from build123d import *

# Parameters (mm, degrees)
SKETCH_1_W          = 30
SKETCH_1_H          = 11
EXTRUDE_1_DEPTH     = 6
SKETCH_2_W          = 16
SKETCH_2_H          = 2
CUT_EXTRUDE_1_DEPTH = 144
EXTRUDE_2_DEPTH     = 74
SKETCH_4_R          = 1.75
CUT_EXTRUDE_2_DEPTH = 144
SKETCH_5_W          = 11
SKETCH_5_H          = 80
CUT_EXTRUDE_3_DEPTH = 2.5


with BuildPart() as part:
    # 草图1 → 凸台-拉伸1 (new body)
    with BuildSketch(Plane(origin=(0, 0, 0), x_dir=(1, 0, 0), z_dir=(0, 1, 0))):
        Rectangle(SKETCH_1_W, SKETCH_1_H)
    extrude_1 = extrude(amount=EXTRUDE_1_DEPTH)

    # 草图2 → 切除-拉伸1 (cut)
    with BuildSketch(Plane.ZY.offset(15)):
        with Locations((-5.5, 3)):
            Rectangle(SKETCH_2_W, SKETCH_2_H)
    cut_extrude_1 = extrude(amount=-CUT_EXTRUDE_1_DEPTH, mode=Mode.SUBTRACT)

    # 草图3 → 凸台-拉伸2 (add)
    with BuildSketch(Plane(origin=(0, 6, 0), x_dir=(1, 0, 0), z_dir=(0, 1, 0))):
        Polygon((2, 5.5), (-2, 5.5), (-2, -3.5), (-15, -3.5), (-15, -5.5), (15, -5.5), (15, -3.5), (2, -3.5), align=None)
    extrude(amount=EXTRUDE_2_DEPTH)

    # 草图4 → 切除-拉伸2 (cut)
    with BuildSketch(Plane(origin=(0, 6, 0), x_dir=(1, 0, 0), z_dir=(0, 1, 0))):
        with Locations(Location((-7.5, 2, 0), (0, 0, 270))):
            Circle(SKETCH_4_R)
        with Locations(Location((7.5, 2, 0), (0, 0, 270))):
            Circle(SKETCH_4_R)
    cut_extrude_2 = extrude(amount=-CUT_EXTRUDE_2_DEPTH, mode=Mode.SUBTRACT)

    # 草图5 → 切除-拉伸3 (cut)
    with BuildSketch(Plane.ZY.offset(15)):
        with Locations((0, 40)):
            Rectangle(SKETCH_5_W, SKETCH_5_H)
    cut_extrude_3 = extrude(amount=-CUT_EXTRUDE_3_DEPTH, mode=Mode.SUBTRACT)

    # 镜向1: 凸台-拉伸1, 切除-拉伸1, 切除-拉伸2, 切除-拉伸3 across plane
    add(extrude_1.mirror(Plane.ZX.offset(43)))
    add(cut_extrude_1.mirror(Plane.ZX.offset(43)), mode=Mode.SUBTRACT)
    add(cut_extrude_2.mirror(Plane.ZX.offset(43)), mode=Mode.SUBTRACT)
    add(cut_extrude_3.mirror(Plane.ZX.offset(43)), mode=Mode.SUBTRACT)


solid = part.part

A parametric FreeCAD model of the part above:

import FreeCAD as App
import Part
import Sketcher
Q = App.Units.Quantity

doc = App.newDocument("Part")
body = doc.addObject("PartDesign::Body", "Body")

# Sketch on XZ plane
sketch1 = body.newObject("Sketcher::SketchObject", "Sketch")
sketch1.AttachmentSupport = (doc.getObject("XZ_Plane"), [""])
sketch1.MapMode = "FlatFace"
sketch1.addGeometry([
    Part.LineSegment(App.Vector(-15, -5.5, 0), App.Vector(-15, 5.5, 0)),
    Part.LineSegment(App.Vector(-15, 5.5, 0), App.Vector(15, 5.5, 0)),
    Part.LineSegment(App.Vector(15, 5.5, 0), App.Vector(15, -5.5, 0)),
    Part.LineSegment(App.Vector(15, -5.5, 0), App.Vector(-15, -5.5, 0)),
], False)
sketch1.addConstraint([
    Sketcher.Constraint("Coincident", 0, 2, 1, 1),
    Sketcher.Constraint("Coincident", 1, 2, 2, 1),
    Sketcher.Constraint("Coincident", 2, 2, 3, 1),
    Sketcher.Constraint("Coincident", 3, 2, 0, 1),
    Sketcher.Constraint("Vertical", 0),
    Sketcher.Constraint("Horizontal", 1),
    Sketcher.Constraint("Vertical", 2),
    Sketcher.Constraint("Horizontal", 3),
    Sketcher.Constraint("Symmetric", 0, 2, 2, 2, -1, 1),
    Sketcher.Constraint("DistanceX", 1, 1, 1, 2, Q("30 mm")),
    Sketcher.Constraint("DistanceY", 0, 1, 0, 2, Q("11 mm")),
])
pad1 = body.newObject("PartDesign::Pad", "Pad")
pad1.Profile = sketch1
pad1.Length = 6
pad1.Reversed = True

# Sketch on YZ plane
sketch2 = body.newObject("Sketcher::SketchObject", "Sketch001")
sketch2.AttachmentSupport = (doc.getObject("YZ_Plane"), [""])
sketch2.MapMode = "FlatFace"
sketch2.AttachmentOffset = App.Placement(App.Vector(0, 0, -15), App.Rotation())
sketch2.addGeometry([
    Part.LineSegment(App.Vector(4, -13.5, 0), App.Vector(2, -13.5, 0)),
    Part.LineSegment(App.Vector(2, -13.5, 0), App.Vector(2, 2.5, 0)),
    Part.LineSegment(App.Vector(2, 2.5, 0), App.Vector(4, 2.5, 0)),
    Part.LineSegment(App.Vector(4, 2.5, 0), App.Vector(4, -13.5, 0)),
], False)
sketch2.addConstraint([
    Sketcher.Constraint("Coincident", 0, 2, 1, 1),
    Sketcher.Constraint("Coincident", 1, 2, 2, 1),
    Sketcher.Constraint("Coincident", 2, 2, 3, 1),
    Sketcher.Constraint("Coincident", 3, 2, 0, 1),
    Sketcher.Constraint("Horizontal", 0),
    Sketcher.Constraint("Vertical", 1),
    Sketcher.Constraint("Horizontal", 2),
    Sketcher.Constraint("Vertical", 3),
    Sketcher.Constraint("DistanceX", 0, 2, 0, 1, Q("2 mm")),
    Sketcher.Constraint("DistanceY", 1, 1, 1, 2, Q("16 mm")),
    Sketcher.Constraint("DistanceX", -1, 1, 0, 2, Q("2 mm")),
    Sketcher.Constraint("DistanceY", 0, 2, -1, 1, Q("13.5 mm")),
])
pocket1 = body.newObject("PartDesign::Pocket", "Pocket")
pocket1.Profile = sketch2
pocket1.Length = 144
pocket1.Reversed = True

# Sketch on XZ plane
sketch3 = body.newObject("Sketcher::SketchObject", "Sketch002")
sketch3.AttachmentSupport = (doc.getObject("XZ_Plane"), [""])
sketch3.MapMode = "FlatFace"
sketch3.AttachmentOffset = App.Placement(App.Vector(0, 0, -6), App.Rotation())
sketch3.addGeometry([
    Part.LineSegment(App.Vector(2, -5.5, 0), App.Vector(-2, -5.5, 0)),  # 0
    Part.LineSegment(App.Vector(-2, -5.5, 0), App.Vector(-2, 3.5, 0)),  # 1
    Part.LineSegment(App.Vector(-2, 3.5, 0), App.Vector(-15, 3.5, 0)),  # 2
    Part.LineSegment(App.Vector(-15, 3.5, 0), App.Vector(-15, 5.5, 0)),  # 3
    Part.LineSegment(App.Vector(-15, 5.5, 0), App.Vector(15, 5.5, 0)),  # 4
    Part.LineSegment(App.Vector(15, 5.5, 0), App.Vector(15, 3.5, 0)),  # 5
    Part.LineSegment(App.Vector(15, 3.5, 0), App.Vector(2, 3.5, 0)),  # 6
    Part.LineSegment(App.Vector(2, 3.5, 0), App.Vector(2, -5.5, 0)),  # 7
], False)
sketch3.addConstraint([
    Sketcher.Constraint("Coincident", 0, 2, 1, 1),
    Sketcher.Constraint("Coincident", 1, 2, 2, 1),
    Sketcher.Constraint("Coincident", 2, 2, 3, 1),
    Sketcher.Constraint("Coincident", 3, 2, 4, 1),
    Sketcher.Constraint("Coincident", 4, 2, 5, 1),
    Sketcher.Constraint("Coincident", 5, 2, 6, 1),
    Sketcher.Constraint("Coincident", 6, 2, 7, 1),
    Sketcher.Constraint("Coincident", 7, 2, 0, 1),
    Sketcher.Constraint("Horizontal", 0),
    Sketcher.Constraint("Vertical", 1),
    Sketcher.Constraint("Horizontal", 2),
    Sketcher.Constraint("Vertical", 3),
    Sketcher.Constraint("Horizontal", 4),
    Sketcher.Constraint("Vertical", 5),
    Sketcher.Constraint("Horizontal", 6),
    Sketcher.Constraint("Vertical", 7),
    Sketcher.Constraint("Symmetric", 2, 2, 5, 2, -2),
    Sketcher.Constraint("Equal", 2, 6),
    Sketcher.Constraint("DistanceX", 0, 2, 0, 1, Q("4 mm")),
    Sketcher.Constraint("DistanceX", 2, 2, 2, 1, Q("13 mm")),
    Sketcher.Constraint("DistanceY", 1, 1, 1, 2, Q("9 mm")),
    Sketcher.Constraint("DistanceY", 3, 1, 3, 2, Q("2 mm")),
    Sketcher.Constraint("DistanceY", 0, 2, -1, 1, Q("5.5 mm")),
])
pad2 = body.newObject("PartDesign::Pad", "Pad001")
pad2.Profile = sketch3
pad2.Length = 74
pad2.Reversed = True

# Sketch on XZ plane
sketch4 = body.newObject("Sketcher::SketchObject", "Sketch003")
sketch4.AttachmentSupport = (doc.getObject("XZ_Plane"), [""])
sketch4.MapMode = "FlatFace"
sketch4.AttachmentOffset = App.Placement(App.Vector(0, 0, -6), App.Rotation())
sketch4.addGeometry([
    Part.Circle(App.Vector(-7.5, -2, 0), App.Vector(0, 0, 1), 1.75),
    Part.Circle(App.Vector(7.5, -2, 0), App.Vector(0, 0, 1), 1.75),
], False)
sketch4.addConstraint([
    Sketcher.Constraint("Equal", 0, 1),
    Sketcher.Constraint("Symmetric", 0, 3, 1, 3, -2),
    Sketcher.Constraint("Diameter", 0, Q("3.5 mm")),
    Sketcher.Constraint("DistanceY", 0, 3, -1, 1, Q("2 mm")),
    Sketcher.Constraint("DistanceX", 0, 3, 1, 3, Q("15 mm")),
])
pocket2 = body.newObject("PartDesign::Pocket", "Pocket001")
pocket2.Profile = sketch4
pocket2.Length = 144
pocket2.Reversed = True

# Sketch on YZ plane
sketch5 = body.newObject("Sketcher::SketchObject", "Sketch004")
sketch5.AttachmentSupport = (doc.getObject("YZ_Plane"), [""])
sketch5.MapMode = "FlatFace"
sketch5.AttachmentOffset = App.Placement(App.Vector(0, 0, -15), App.Rotation())
sketch5.addGeometry([
    Part.LineSegment(App.Vector(80, -5.5, 0), App.Vector(0, -5.5, 0)),
    Part.LineSegment(App.Vector(0, -5.5, 0), App.Vector(0, 5.5, 0)),
    Part.LineSegment(App.Vector(0, 5.5, 0), App.Vector(80, 5.5, 0)),
    Part.LineSegment(App.Vector(80, 5.5, 0), App.Vector(80, -5.5, 0)),
], False)
sketch5.addConstraint([
    Sketcher.Constraint("Coincident", 0, 2, 1, 1),
    Sketcher.Constraint("Coincident", 1, 2, 2, 1),
    Sketcher.Constraint("Coincident", 2, 2, 3, 1),
    Sketcher.Constraint("Coincident", 3, 2, 0, 1),
    Sketcher.Constraint("Horizontal", 0),
    Sketcher.Constraint("Vertical", 1),
    Sketcher.Constraint("Horizontal", 2),
    Sketcher.Constraint("Vertical", 3),
    Sketcher.Constraint("Symmetric", 0, 2, 1, 2, -1, 1),
    Sketcher.Constraint("DistanceX", 0, 2, 0, 1, Q("80 mm")),
    Sketcher.Constraint("DistanceY", 1, 1, 1, 2, Q("11 mm")),
])
pocket3 = body.newObject("PartDesign::Pocket", "Pocket002")
pocket3.Profile = sketch5
pocket3.Length = 2.5
pocket3.Reversed = True
doc.recompute()

datumplane = body.newObject("PartDesign::Plane", "DatumPlane")
datumplane.AttachmentSupport = (doc.getObject("XZ_Plane"), [""])
datumplane.MapMode = "FlatFace"
datumplane.AttachmentOffset = App.Placement(App.Vector(0, 0, -43), App.Rotation())
mirrored = body.newObject("PartDesign::Mirrored", "Mirrored")
mirrored.Originals = [pad1, pocket1, pocket2, pocket3]
mirrored.MirrorPlane = (datumplane, [""])
body.Tip = mirrored

doc.recompute()
